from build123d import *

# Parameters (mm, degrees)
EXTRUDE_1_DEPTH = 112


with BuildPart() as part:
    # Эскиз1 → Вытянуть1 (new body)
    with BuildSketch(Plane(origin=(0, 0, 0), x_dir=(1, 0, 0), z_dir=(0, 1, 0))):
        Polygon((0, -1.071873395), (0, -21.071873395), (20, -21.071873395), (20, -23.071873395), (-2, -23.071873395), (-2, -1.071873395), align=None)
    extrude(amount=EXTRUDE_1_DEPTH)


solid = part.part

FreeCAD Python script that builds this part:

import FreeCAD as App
import Part
import Sketcher

V = App.Vector
Q = App.Units.Quantity


def add_polygon(sketch, points):
    """Adds a closed chain of lines whose ends are joined by coincident constraints."""
    first, n = sketch.GeometryCount, len(points)
    for a, b in zip(points, points[1:] + points[:1]):
        sketch.addGeometry(Part.LineSegment(App.Vector(*a, 0), App.Vector(*b, 0)), False)
    for i in range(n):
        sketch.addConstraint(Sketcher.Constraint("Coincident", first + i, 2, first + (i + 1) % n, 1))

doc = App.newDocument("Part")
body = doc.addObject("PartDesign::Body", "Body")

# Sketch on XZ plane
sketch1 = body.newObject("Sketcher::SketchObject", "Sketch")
sketch1.AttachmentSupport = (doc.getObject("XZ_Plane"), [""])
sketch1.MapMode = "FlatFace"
add_polygon(sketch1, [(0, 21.1), (0, 1.1), (-2, 1.1), (-2, 23.1), (20, 23.1), (20, 21.1)])  # lines 0-5
sketch1.addConstraint([
    Sketcher.Constraint("Vertical", 0),
    Sketcher.Constraint("Horizontal", 1),
    Sketcher.Constraint("Vertical", 2),
    Sketcher.Constraint("Horizontal", 3),
    Sketcher.Constraint("Vertical", 4),
    Sketcher.Constraint("Horizontal", 5),
    Sketcher.Constraint("PointOnObject", 0, 2, -2),
    Sketcher.Constraint("Equal", 5, 0),
    Sketcher.Constraint("Equal", 3, 2),
    Sketcher.Constraint("DistanceX", 1, 2, 1, 1, Q("2 mm")),
    Sketcher.Constraint("DistanceX", 3, 1, 3, 2, Q("22 mm")),
    Sketcher.Constraint("DistanceY", -1, 1, 0, 2, Q("1.071873 mm")),
])
pad1 = body.newObject("PartDesign::Pad", "Pad")
pad1.Profile = sketch1
pad1.Length = 112
pad1.Reversed = True

doc.recompute()
